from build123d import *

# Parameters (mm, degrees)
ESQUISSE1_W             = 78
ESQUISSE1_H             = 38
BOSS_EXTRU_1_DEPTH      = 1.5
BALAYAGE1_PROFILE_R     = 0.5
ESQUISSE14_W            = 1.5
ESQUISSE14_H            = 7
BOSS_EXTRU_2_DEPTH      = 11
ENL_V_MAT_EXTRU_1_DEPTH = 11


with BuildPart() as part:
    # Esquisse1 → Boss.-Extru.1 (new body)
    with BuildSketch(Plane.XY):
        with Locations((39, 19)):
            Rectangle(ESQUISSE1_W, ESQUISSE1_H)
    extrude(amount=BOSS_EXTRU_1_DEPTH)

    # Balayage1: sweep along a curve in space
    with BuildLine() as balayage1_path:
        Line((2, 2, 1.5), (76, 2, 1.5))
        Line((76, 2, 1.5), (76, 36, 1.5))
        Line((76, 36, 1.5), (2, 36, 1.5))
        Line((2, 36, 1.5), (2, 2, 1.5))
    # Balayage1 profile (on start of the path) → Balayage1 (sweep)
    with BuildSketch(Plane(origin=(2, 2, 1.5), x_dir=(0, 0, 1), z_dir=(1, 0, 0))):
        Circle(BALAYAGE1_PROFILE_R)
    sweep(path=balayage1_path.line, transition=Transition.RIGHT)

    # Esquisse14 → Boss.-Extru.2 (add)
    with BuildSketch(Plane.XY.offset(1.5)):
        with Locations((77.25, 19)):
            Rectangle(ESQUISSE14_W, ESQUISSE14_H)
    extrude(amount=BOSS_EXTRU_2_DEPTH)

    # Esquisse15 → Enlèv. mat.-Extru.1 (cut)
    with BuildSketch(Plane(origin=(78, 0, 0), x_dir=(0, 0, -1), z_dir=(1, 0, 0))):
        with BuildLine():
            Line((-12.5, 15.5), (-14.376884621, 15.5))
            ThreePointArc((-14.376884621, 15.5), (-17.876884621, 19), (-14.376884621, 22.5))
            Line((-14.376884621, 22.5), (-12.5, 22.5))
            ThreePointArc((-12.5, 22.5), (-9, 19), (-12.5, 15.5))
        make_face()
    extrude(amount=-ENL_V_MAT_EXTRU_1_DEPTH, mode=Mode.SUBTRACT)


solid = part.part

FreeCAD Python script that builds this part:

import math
import FreeCAD as App
import Part
import Sketcher
from FreeCAD import Vector


def add_polygon(sketch, points):
    """Adds a closed chain of lines whose ends are joined by coincident constraints."""
    first, n = sketch.GeometryCount, len(points)
    for a, b in zip(points, points[1:] + points[:1]):
        sketch.addGeometry(Part.LineSegment(App.Vector(*a, 0), App.Vector(*b, 0)), False)
    for i in range(n):
        sketch.addConstraint(Sketcher.Constraint("Coincident", first + i, 2, first + (i + 1) % n, 1))

doc = App.newDocument("Part")
body = doc.addObject("PartDesign::Body", "Body")

sketch1 = body.newObject("Sketcher::SketchObject", "Sketch")
sketch1.AttachmentSupport = (doc.getObject("XY_Plane"), [""])
sketch1.MapMode = "FlatFace"
add_polygon(sketch1, [(0, 38), (0, 0), (78, 0), (78, 38)])
sketch1.addConstraint([
    Sketcher.Constraint("Vertical", 0),
    Sketcher.Constraint("Horizontal", 1),
    Sketcher.Constraint("Vertical", 2),
    Sketcher.Constraint("Horizontal", 3),
    Sketcher.Constraint("Coincident", 0, 2, -1, 1),
    Sketcher.Constraint("DistanceX", 1, 1, 1, 2, 78.0),
    Sketcher.Constraint("DistanceY", 0, 2, 0, 1, 38.0),
])
pad1 = body.newObject("PartDesign::Pad", "Pad")
pad1.Profile = sketch1
pad1.Length = 1.5

sketch2 = body.newObject("Sketcher::SketchObject", "Sketch001")
sketch2.AttachmentSupport = (doc.getObject("YZ_Plane"), [""])
sketch2.MapMode = "FlatFace"
sketch2.AttachmentOffset = App.Placement(Vector(0, 0, 2), App.Rotation())
sketch2.addGeometry(Part.Circle(Vector(2, 1.5, 0), Vector(0, 0, 1), 0.5), False)
sketch2.addConstraint([
    Sketcher.Constraint("Diameter", 0, 1.0),
    Sketcher.Constraint("DistanceX", -1, 1, 0, 3, 2.0),
    Sketcher.Constraint("DistanceY", -1, 1, 0, 3, 1.5),
])

sketch3 = body.newObject("Sketcher::SketchObject", "Sketch002")
sketch3.AttachmentSupport = (doc.getObject("XY_Plane"), [""])
sketch3.MapMode = "FlatFace"
sketch3.AttachmentOffset = App.Placement(Vector(0, 0, 1.5), App.Rotation())
add_polygon(sketch3, [(2, 2), (76, 2), (76, 36), (2, 36)])
sketch3.addConstraint([
    Sketcher.Constraint("Horizontal", 0),
    Sketcher.Constraint("Vertical", 1),
    Sketcher.Constraint("Horizontal", 2),
    Sketcher.Constraint("Vertical", 3),
    Sketcher.Constraint("DistanceX", 0, 1, 0, 2, 74.0),
    Sketcher.Constraint("DistanceY", 1, 1, 1, 2, 34.0),
    Sketcher.Constraint("DistanceX", -1, 1, 0, 2, 76.0),
    Sketcher.Constraint("DistanceY", -1, 1, 0, 2, 2.0),
])
doc.recompute()

additivepipe = body.newObject("PartDesign::AdditivePipe", "AdditivePipe")
additivepipe.Profile = sketch2
additivepipe.Spine = (sketch3, ["Edge1", "Edge2", "Edge3", "Edge4"])
additivepipe.Transition = "Right corner"

sketch4 = body.newObject("Sketcher::SketchObject", "Sketch003")
sketch4.AttachmentSupport = (doc.getObject("XY_Plane"), [""])
sketch4.MapMode = "FlatFace"
sketch4.AttachmentOffset = App.Placement(Vector(0, 0, 1.5), App.Rotation())
add_polygon(sketch4, [(76.5, 22.5), (76.5, 15.5), (78, 15.5), (78, 22.5)])
sketch4.addConstraint([
    Sketcher.Constraint("Vertical", 0),
    Sketcher.Constraint("Horizontal", 1),
    Sketcher.Constraint("Vertical", 2),
    Sketcher.Constraint("Horizontal", 3),
    Sketcher.Constraint("DistanceY", 0, 2, 0, 1, 7.0),
    Sketcher.Constraint("DistanceX", 1, 1, 1, 2, 1.5),
    Sketcher.Constraint("DistanceX", -1, 1, 1, 2, 78.0),
    Sketcher.Constraint("DistanceY", -1, 1, 0, 2, 15.5),
])
pad2 = body.newObject("PartDesign::Pad", "Pad001")
pad2.Profile = sketch4
pad2.Length = 11

sketch5 = body.newObject("Sketcher::SketchObject", "Sketch004")
sketch5.AttachmentSupport = (doc.getObject("YZ_Plane"), [""])
sketch5.MapMode = "FlatFace"
sketch5.AttachmentOffset = App.Placement(Vector(0, 0, 78), App.Rotation())
sketch5.addGeometry([
    Part.LineSegment(Vector(15.5, 14.376885, 0), Vector(15.5, 12.5, 0)),
    Part.ArcOfCircle(Part.Circle(Vector(19, 12.5, 0), Vector(0, 0, 1), 3.5), math.radians(180), math.radians(360)),
    Part.LineSegment(Vector(22.5, 12.5, 0), Vector(22.5, 14.376885, 0)),
    Part.ArcOfCircle(Part.Circle(Vector(19, 14.376885, 0), Vector(0, 0, 1), 3.5), math.radians(0), math.radians(180)),
], False)
sketch5.addConstraint([
    Sketcher.Constraint("Tangent", 0, 2, 1, 1),
    Sketcher.Constraint("Tangent", 1, 2, 2, 1),
    Sketcher.Constraint("Tangent", 2, 2, 3, 1),
    Sketcher.Constraint("Tangent", 3, 2, 0, 1),
    Sketcher.Constraint("Vertical", 0),
    Sketcher.Constraint("Vertical", 2),
    Sketcher.Constraint("Radius", 1, 3.5),
    Sketcher.Constraint("DistanceX", -1, 1, 1, 3, 19.0),
    Sketcher.Constraint("DistanceY", -1, 1, 1, 3, 12.5),
    Sketcher.Constraint("DistanceY", 0, 2, 0, 1, 1.876885),
])
pocket1 = body.newObject("PartDesign::Pocket", "Pocket")
pocket1.Profile = sketch5
pocket1.Length = 11

doc.recompute()
